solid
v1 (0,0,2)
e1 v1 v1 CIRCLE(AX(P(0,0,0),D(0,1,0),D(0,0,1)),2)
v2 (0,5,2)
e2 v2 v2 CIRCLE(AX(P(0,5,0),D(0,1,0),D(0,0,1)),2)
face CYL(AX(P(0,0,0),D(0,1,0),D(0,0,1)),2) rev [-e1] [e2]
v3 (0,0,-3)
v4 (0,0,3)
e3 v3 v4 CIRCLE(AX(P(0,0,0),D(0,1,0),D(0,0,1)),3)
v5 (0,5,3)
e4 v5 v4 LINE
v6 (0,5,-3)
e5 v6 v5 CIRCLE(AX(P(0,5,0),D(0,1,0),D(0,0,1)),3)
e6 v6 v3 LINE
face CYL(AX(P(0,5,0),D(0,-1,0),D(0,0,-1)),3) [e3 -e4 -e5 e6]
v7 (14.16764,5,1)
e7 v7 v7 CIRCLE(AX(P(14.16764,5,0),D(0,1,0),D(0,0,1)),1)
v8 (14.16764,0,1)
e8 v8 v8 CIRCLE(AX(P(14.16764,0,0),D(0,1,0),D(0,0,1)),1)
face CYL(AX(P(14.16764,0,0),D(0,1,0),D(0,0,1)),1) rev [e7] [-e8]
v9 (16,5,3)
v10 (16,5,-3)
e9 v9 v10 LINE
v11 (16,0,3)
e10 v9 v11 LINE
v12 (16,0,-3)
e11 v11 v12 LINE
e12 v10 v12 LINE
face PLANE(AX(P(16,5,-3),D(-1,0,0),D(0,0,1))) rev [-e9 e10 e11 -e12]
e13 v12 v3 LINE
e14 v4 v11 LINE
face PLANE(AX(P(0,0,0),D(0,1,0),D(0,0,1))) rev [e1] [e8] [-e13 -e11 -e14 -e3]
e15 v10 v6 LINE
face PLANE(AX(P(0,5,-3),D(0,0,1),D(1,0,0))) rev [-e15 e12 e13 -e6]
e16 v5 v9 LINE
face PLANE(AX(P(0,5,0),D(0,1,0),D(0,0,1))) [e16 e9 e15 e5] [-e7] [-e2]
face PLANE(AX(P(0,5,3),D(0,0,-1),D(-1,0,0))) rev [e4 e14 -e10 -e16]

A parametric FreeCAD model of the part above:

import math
import FreeCAD as App
import Part
import Sketcher

doc = App.newDocument("Part")
body = doc.addObject("PartDesign::Body", "Body")

sketch1 = doc.addObject("Sketcher::SketchObject", "Sketch")
body.addObject(sketch1)
sketch1.AttachmentSupport = (doc.XZ_Plane, [""])
sketch1.MapMode = "FlatFace"
sketch1.addGeometry([
    Part.LineSegment(App.Vector(16, -3, 0), App.Vector(0, -3, 0)),
    Part.ArcOfCircle(Part.Circle(App.Vector(0, 0, 0), App.Vector(0, 0, 1), 3), math.radians(90), math.radians(270)),
    Part.LineSegment(App.Vector(0, 3, 0), App.Vector(16, 3, 0)),
    Part.LineSegment(App.Vector(16, 3, 0), App.Vector(16, -3, 0)),
], False)
sketch1.addConstraint([
    Sketcher.Constraint("Tangent", 0, 2, 1, 2),
    Sketcher.Constraint("Tangent", 1, 1, 2, 1),
    Sketcher.Constraint("Coincident", 2, 2, 3, 1),
    Sketcher.Constraint("Coincident", 3, 2, 0, 1),
    Sketcher.Constraint("Horizontal", 0),
    Sketcher.Constraint("Horizontal", 2),
    Sketcher.Constraint("Vertical", 3),
    Sketcher.Constraint("Coincident", 1, 3, -1, 1),
    Sketcher.Constraint("Radius", 1, 3.0),
    Sketcher.Constraint("DistanceX", 0, 2, 0, 1, 16.0),
])
pad1 = doc.addObject("PartDesign::Pad", "Pad")
body.addObject(pad1)
pad1.Profile = sketch1
pad1.Length = 5
pad1.Reversed = True

sketch2 = doc.addObject("Sketcher::SketchObject", "Sketch001")
body.addObject(sketch2)
sketch2.AttachmentSupport = (doc.XZ_Plane, [""])
sketch2.MapMode = "FlatFace"
sketch2.AttachmentOffset = App.Placement(App.Vector(0, 0, -5), App.Rotation())
sketch2.addGeometry(Part.Circle(App.Vector(0, 0, 0), App.Vector(0, 0, 1), 2), False)
sketch2.addConstraint([
    Sketcher.Constraint("Coincident", 0, 3, -1, 1),
    Sketcher.Constraint("Diameter", 0, 4.0),
])
pocket1 = doc.addObject("PartDesign::Pocket", "Pocket")
body.addObject(pocket1)
pocket1.Profile = sketch2
pocket1.Length = 5
pocket1.Reversed = True

sketch3 = doc.addObject("Sketcher::SketchObject", "Sketch002")
body.addObject(sketch3)
sketch3.AttachmentSupport = (doc.XZ_Plane, [""])
sketch3.MapMode = "FlatFace"
sketch3.AttachmentOffset = App.Placement(App.Vector(0, 0, -5), App.Rotation())
sketch3.addGeometry(Part.Circle(App.Vector(14.2, 0, 0), App.Vector(0, 0, 1), 1), False)
sketch3.addConstraint([
    Sketcher.Constraint("PointOnObject", 0, 3, -1),
    Sketcher.Constraint("Diameter", 0, 2.0),
    Sketcher.Constraint("DistanceX", -1, 1, 0, 3, 14.16764),
])
pocket2 = doc.addObject("PartDesign::Pocket", "Pocket001")
body.addObject(pocket2)
pocket2.Profile = sketch3
pocket2.Length = 5
pocket2.Reversed = True

doc.recompute()
